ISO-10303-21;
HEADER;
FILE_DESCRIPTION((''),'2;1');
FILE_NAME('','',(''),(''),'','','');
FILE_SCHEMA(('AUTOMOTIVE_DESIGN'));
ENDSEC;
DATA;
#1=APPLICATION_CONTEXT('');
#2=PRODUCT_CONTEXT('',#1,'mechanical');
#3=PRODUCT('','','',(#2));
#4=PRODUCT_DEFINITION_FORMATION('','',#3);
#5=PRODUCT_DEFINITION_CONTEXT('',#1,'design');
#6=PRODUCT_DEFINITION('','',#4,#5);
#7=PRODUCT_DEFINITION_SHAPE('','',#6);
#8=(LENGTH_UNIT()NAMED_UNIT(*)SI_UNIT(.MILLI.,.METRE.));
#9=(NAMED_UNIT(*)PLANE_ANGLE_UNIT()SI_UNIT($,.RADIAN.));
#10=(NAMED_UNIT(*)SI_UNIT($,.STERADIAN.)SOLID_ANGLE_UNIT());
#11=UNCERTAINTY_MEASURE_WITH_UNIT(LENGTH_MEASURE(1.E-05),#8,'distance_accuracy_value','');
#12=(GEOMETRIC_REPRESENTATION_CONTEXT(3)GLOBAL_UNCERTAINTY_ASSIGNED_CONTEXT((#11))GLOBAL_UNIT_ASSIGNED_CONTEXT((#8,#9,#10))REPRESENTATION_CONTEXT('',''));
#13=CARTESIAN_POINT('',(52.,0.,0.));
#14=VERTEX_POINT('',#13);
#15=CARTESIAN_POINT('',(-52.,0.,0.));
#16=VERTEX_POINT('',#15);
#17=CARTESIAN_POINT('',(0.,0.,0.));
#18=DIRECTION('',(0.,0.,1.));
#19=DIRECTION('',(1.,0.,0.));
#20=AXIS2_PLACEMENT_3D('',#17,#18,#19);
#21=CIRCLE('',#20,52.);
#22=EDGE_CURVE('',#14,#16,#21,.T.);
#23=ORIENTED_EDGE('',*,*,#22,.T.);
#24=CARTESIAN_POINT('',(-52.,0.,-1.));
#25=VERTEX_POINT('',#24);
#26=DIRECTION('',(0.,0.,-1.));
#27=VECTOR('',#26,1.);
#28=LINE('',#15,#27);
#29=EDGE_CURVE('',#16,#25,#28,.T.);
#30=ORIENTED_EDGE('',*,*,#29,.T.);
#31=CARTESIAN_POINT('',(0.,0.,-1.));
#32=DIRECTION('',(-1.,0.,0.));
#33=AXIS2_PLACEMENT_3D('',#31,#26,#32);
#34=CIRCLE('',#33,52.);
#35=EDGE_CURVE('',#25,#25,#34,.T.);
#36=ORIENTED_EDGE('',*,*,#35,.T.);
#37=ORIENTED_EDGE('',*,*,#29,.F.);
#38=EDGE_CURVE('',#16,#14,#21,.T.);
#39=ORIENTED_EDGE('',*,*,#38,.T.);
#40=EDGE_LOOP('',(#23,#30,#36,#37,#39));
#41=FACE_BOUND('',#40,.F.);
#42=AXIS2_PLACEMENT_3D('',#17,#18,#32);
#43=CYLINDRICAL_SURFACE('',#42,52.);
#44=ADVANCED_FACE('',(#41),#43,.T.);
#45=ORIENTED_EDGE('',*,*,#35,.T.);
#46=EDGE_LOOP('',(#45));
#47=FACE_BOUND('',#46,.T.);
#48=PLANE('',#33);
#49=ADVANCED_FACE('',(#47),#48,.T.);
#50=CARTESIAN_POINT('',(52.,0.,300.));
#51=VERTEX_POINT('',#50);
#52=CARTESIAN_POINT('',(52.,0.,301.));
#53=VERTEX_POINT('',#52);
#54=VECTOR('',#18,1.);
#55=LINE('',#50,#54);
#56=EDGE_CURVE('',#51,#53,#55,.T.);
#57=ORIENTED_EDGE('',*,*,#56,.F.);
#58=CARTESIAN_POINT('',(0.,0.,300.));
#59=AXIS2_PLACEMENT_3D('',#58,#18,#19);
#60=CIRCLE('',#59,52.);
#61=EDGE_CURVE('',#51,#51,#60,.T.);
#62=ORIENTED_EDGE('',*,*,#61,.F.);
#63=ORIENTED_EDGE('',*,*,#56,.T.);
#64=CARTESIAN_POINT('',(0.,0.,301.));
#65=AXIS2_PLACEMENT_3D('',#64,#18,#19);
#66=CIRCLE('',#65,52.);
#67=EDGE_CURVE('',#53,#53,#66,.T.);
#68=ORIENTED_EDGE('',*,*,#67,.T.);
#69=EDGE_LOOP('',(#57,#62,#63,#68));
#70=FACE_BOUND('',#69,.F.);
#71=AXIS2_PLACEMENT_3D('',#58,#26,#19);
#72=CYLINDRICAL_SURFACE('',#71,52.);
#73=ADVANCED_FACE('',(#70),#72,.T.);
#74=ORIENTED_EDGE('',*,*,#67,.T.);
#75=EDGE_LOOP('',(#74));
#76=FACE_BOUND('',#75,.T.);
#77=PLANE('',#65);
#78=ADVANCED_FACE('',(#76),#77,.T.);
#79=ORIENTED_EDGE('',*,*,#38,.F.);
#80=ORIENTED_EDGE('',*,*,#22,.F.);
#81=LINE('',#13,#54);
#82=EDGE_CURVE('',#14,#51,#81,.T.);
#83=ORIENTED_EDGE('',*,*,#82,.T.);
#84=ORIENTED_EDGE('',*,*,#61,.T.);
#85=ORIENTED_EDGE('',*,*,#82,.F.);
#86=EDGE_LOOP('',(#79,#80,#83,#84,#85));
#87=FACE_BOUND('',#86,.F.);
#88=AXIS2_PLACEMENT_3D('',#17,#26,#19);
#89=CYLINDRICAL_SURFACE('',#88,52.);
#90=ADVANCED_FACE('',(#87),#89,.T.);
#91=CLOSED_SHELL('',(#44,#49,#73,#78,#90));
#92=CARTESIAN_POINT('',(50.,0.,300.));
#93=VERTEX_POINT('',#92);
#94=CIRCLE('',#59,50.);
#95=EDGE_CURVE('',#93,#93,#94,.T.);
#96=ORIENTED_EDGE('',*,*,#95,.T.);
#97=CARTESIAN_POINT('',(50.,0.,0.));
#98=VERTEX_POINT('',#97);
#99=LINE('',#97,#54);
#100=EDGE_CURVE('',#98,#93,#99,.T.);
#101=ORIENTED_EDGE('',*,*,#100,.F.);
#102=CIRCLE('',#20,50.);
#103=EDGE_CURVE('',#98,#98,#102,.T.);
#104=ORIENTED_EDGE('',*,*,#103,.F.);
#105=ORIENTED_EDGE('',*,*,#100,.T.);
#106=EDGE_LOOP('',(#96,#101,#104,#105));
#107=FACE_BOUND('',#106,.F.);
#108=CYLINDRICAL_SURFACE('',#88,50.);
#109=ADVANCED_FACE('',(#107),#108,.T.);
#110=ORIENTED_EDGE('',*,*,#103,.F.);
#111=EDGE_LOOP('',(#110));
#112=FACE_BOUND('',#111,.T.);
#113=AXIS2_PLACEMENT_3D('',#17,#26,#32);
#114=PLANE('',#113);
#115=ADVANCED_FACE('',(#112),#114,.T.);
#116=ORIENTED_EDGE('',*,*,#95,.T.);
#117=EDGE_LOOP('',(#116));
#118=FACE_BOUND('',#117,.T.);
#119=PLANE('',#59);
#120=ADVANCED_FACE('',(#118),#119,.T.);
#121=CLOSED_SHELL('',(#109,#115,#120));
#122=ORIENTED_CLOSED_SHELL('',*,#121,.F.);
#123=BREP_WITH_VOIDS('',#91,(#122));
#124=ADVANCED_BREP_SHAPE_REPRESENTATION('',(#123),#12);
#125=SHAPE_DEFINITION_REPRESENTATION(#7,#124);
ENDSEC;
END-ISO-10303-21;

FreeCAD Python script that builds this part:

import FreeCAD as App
import Part
import Sketcher
from FreeCAD import Vector

doc = App.newDocument("Part")
body = doc.addObject("PartDesign::Body", "Body")

# Sketch on XY plane
sketch1 = body.newObject("Sketcher::SketchObject", "Sketch")
sketch1.AttachmentSupport = (doc.getObject("XY_Plane"), [""])
sketch1.MapMode = "FlatFace"
sketch1.addGeometry(Part.Circle(Vector(0, 0, 0), Vector(0, 0, 1), 52), False)
sketch1.addGeometry(Part.Circle(Vector(0, 0, 0), Vector(0, 0, 1), 50), False)
sketch1.addConstraint(Sketcher.Constraint("Coincident", 0, 3, -1, 1))
sketch1.addConstraint(Sketcher.Constraint("Coincident", 1, 3, -1, 1))
sketch1.addConstraint(Sketcher.Constraint("Diameter", 1, 100.0))
sketch1.addConstraint(Sketcher.Constraint("Diameter", 0, 104.0))
pad1 = body.newObject("PartDesign::Pad", "Pad")
pad1.Profile = sketch1
pad1.Length = 300

# Sketch on XY plane
sketch2 = body.newObject("Sketcher::SketchObject", "Sketch001")
sketch2.AttachmentSupport = (doc.getObject("XY_Plane"), [""])
sketch2.MapMode = "FlatFace"
sketch2.addGeometry(Part.Circle(Vector(0, 0, 0), Vector(0, 0, 1), 52), False)
sketch2.addConstraint(Sketcher.Constraint("Coincident", 0, 3, -1, 1))
sketch2.addConstraint(Sketcher.Constraint("Diameter", 0, 104.0))
pad2 = body.newObject("PartDesign::Pad", "Pad001")
pad2.Profile = sketch2
pad2.Length = 1
pad2.Reversed = True

# Sketch on XY plane
sketch3 = body.newObject("Sketcher::SketchObject", "Sketch002")
sketch3.AttachmentSupport = (doc.getObject("XY_Plane"), [""])
sketch3.MapMode = "FlatFace"
sketch3.AttachmentOffset = App.Placement(Vector(0, 0, 300), App.Rotation())
sketch3.addGeometry(Part.Circle(Vector(0, 0, 0), Vector(0, 0, 1), 52), False)
sketch3.addConstraint(Sketcher.Constraint("Coincident", 0, 3, -1, 1))
sketch3.addConstraint(Sketcher.Constraint("Diameter", 0, 104.0))
pad3 = body.newObject("PartDesign::Pad", "Pad002")
pad3.Profile = sketch3
pad3.Length = 1

doc.recompute()
